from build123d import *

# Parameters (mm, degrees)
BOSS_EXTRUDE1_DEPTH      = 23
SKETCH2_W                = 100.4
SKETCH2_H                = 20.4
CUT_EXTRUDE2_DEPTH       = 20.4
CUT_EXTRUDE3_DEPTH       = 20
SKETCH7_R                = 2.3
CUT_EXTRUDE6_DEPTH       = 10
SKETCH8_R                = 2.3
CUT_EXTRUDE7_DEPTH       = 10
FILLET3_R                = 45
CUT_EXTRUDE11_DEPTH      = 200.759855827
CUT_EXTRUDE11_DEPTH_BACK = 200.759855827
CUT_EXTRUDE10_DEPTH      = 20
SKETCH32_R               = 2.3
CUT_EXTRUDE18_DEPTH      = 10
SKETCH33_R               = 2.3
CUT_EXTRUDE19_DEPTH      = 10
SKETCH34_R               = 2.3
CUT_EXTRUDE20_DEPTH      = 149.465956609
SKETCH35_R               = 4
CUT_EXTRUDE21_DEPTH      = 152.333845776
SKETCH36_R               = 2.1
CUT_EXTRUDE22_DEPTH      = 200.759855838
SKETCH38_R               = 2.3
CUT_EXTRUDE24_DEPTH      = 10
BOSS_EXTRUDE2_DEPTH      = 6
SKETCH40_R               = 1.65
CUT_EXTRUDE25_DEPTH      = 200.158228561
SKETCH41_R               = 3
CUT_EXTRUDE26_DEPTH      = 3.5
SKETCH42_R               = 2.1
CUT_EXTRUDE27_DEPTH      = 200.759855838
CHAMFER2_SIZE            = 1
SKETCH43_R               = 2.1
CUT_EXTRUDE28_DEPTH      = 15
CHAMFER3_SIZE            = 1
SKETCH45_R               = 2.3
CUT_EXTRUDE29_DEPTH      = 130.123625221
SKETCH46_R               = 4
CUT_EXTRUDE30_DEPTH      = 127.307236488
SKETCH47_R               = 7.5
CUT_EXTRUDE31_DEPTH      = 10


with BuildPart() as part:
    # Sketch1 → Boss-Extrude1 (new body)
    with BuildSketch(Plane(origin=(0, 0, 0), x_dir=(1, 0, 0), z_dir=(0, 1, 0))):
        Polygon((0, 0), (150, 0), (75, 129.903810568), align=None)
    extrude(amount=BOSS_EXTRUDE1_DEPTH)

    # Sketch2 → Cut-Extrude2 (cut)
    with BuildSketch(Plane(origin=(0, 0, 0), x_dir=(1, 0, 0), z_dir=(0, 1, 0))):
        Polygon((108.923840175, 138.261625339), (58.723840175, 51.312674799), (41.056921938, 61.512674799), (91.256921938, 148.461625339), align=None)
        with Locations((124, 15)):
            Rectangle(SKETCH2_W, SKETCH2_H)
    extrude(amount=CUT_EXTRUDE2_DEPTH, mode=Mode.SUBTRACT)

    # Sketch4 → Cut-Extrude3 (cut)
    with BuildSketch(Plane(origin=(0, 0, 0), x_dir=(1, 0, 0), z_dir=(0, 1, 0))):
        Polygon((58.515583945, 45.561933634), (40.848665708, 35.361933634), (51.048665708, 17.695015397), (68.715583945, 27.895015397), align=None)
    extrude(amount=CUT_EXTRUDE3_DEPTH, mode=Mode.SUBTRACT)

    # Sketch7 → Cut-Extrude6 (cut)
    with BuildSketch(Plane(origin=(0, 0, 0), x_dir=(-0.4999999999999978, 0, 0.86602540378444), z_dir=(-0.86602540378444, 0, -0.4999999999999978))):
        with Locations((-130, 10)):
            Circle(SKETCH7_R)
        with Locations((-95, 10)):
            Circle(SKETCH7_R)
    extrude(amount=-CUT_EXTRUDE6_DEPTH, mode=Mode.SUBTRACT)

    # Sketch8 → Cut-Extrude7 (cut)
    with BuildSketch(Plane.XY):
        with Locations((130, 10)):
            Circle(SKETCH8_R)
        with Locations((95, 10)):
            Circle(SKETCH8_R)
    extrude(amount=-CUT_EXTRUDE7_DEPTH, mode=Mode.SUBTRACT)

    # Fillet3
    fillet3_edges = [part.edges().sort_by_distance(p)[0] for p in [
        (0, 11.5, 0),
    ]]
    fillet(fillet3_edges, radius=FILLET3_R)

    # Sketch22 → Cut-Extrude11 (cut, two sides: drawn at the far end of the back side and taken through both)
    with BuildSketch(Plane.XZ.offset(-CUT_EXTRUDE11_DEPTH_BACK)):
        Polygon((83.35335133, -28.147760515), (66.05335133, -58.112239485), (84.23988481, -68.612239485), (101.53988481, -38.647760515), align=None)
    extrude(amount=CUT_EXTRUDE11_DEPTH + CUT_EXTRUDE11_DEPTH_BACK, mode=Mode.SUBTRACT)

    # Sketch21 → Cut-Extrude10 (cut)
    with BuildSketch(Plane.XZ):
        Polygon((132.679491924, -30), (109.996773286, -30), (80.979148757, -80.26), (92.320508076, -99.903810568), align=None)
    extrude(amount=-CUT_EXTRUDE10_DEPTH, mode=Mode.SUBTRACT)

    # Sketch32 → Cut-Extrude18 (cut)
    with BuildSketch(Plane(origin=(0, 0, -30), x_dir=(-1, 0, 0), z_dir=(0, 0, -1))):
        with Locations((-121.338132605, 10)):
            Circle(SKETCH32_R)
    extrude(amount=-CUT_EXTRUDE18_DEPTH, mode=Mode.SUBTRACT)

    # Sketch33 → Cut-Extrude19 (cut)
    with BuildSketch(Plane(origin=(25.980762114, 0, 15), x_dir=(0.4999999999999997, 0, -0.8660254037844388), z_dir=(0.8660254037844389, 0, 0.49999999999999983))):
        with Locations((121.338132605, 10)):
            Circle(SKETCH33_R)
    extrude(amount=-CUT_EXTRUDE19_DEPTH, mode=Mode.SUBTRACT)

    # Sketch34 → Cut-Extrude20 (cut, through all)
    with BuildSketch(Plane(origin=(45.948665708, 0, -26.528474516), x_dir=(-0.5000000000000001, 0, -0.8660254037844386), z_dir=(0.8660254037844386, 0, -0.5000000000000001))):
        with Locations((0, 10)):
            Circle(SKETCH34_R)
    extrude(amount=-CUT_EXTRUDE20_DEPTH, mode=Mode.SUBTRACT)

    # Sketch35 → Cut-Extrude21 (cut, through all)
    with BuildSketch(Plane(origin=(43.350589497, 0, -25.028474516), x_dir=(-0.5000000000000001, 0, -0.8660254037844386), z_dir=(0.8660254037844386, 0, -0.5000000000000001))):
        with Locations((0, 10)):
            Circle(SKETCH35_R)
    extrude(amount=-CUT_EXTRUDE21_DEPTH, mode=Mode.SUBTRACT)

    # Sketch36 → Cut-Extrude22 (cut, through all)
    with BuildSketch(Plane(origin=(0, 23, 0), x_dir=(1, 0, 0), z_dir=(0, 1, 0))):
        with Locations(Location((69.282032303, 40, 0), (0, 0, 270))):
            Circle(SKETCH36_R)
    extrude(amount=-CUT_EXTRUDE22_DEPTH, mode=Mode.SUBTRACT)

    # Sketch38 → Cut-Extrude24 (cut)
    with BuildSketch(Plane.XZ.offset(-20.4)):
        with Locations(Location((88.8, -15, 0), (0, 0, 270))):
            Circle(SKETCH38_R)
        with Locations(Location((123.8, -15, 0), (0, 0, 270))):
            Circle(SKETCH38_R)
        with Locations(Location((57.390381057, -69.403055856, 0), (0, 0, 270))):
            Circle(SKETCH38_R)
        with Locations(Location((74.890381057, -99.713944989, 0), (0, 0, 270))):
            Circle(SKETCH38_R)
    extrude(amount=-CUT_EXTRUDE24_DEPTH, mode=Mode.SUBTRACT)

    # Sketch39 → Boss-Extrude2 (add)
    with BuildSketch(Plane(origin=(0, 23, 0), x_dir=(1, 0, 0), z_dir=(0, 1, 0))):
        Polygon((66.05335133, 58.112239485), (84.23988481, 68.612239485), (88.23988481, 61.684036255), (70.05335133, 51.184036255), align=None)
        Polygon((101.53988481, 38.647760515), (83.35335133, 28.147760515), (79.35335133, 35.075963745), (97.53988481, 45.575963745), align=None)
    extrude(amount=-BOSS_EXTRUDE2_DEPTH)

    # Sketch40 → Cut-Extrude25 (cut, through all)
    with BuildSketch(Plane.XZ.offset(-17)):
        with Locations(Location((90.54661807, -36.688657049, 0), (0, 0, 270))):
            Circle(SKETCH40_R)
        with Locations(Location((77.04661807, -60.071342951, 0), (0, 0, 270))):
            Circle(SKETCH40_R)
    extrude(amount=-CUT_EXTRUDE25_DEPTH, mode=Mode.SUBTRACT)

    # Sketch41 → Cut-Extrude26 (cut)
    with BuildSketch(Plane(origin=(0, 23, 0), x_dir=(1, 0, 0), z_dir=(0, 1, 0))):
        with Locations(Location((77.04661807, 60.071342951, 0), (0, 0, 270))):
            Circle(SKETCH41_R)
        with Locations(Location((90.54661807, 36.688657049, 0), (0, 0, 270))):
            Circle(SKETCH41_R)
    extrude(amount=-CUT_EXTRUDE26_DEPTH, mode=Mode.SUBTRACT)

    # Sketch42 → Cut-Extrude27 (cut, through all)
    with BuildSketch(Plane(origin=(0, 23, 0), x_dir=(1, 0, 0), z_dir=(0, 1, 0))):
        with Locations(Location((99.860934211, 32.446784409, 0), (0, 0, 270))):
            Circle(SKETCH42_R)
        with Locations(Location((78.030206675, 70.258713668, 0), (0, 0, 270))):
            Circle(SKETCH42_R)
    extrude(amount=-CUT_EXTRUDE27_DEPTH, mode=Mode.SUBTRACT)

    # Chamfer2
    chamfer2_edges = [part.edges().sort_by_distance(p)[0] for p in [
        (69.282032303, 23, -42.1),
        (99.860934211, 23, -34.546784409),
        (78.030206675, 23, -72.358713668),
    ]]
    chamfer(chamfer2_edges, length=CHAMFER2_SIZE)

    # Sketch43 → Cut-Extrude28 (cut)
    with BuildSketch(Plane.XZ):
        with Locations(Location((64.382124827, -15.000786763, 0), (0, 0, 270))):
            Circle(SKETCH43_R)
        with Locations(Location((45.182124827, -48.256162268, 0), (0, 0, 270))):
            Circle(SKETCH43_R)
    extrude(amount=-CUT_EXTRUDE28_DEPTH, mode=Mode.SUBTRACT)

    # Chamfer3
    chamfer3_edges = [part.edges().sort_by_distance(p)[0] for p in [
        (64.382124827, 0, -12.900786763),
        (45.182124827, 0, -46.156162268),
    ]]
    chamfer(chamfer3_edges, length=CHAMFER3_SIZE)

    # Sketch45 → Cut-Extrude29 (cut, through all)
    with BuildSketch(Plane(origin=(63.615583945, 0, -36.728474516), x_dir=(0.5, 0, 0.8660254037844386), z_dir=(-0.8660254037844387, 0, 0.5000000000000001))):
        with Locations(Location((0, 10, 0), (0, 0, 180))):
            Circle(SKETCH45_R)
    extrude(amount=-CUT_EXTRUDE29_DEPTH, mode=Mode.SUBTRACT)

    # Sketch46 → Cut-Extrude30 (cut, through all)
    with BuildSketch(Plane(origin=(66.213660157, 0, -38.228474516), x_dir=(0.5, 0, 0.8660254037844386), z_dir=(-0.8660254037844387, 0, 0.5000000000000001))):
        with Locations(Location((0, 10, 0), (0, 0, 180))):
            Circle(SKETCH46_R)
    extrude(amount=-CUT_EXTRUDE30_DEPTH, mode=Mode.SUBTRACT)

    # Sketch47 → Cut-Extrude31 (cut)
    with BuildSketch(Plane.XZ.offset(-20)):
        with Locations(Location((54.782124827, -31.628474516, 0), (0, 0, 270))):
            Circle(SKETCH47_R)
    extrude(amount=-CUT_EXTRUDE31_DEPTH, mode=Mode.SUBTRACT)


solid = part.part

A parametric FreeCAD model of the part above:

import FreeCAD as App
import Part
import Sketcher
from FreeCAD import Vector
Q = App.Units.Quantity


def edges_at(feature, points):
    """Names of the edges that pass closest to the given points."""
    edges = feature.Shape.Edges
    near = lambda p: min(range(len(edges)), key=lambda i: edges[i].distToShape(Part.Vertex(*p))[0])
    return sorted({f"Edge{near(p) + 1}" for p in points})

doc = App.newDocument("Part")
params = doc.addObject("Spreadsheet::Sheet", "Params")
for row, (alias, value) in enumerate([
    ("sketch1_width", "150 mm"),
    ("pad1_length", "23 mm"),
    ("sketch2_width", "100.4 mm"),
    ("sketch2_height", "20.4 mm"),
    ("sketch2_length", "100.4 mm"),
    ("sketch2_length2", "20.4 mm"),
    ("pocket1_length", "20.4 mm"),
    ("sketch3_length", "20.4 mm"),
    ("pocket2_length", "20 mm"),
    ("sketch4_diameter", "4.6 mm"),
    ("pocket3_length", "10 mm"),
    ("sketch5_diameter", "4.6 mm"),
    ("pocket4_length", "10 mm"),
    ("fillet_radius", "45 mm"),
    ("sketch6_length", "21 mm"),
    ("sketch6_length2", "34.6 mm"),
    ("pocket6_length", "20 mm"),
    ("sketch8_diameter", "4.6 mm"),
    ("pocket7_length", "10 mm"),
    ("sketch9_diameter", "4.6 mm"),
    ("pocket8_length", "10 mm"),
    ("sketch10_diameter", "4.6 mm"),
    ("sketch11_diameter", "8 mm"),
    ("sketch12_diameter", "4.2 mm"),
    ("sketch13_diameter", "4.6 mm"),
    ("pocket12_length", "10 mm"),
    ("sketch14_length", "21 mm"),
    ("sketch14_length2", "8 mm"),
    ("pad2_length", "6 mm"),
    ("sketch15_diameter", "3.3 mm"),
    ("sketch16_diameter", "6 mm"),
    ("pocket14_length", "3.5 mm"),
    ("sketch17_diameter", "4.2 mm"),
    ("chamfer_size", "1 mm"),
    ("sketch18_diameter", "4.2 mm"),
    ("pocket16_length", "15 mm"),
    ("chamfer2_size", "1 mm"),
    ("sketch19_diameter", "4.6 mm"),
    ("sketch20_diameter", "8 mm"),
    ("sketch21_diameter", "15 mm"),
    ("pocket19_length", "10 mm"),
], start=1):
    params.set(f"A{row}", alias)
    params.set(f"B{row}", "=" + value)
    params.setAlias(f"B{row}", alias)

body = doc.addObject("PartDesign::Body", "Body")

# Sketch on XZ plane
sketch1 = doc.addObject("Sketcher::SketchObject", "Sketch")
body.addObject(sketch1)
sketch1.AttachmentSupport = (doc.XZ_Plane, [""])
sketch1.MapMode = "FlatFace"
sketch1.addGeometry(Part.LineSegment(Vector(0, 0, 0), Vector(150, 0, 0)), False)
sketch1.addGeometry(Part.LineSegment(Vector(150, 0, 0), Vector(75, -130, 0)), False)
sketch1.addGeometry(Part.LineSegment(Vector(75, -130, 0), Vector(0, 0, 0)), False)
sketch1.addConstraint(Sketcher.Constraint("Coincident", 0, 2, 1, 1))
sketch1.addConstraint(Sketcher.Constraint("Coincident", 1, 2, 2, 1))
sketch1.addConstraint(Sketcher.Constraint("Coincident", 2, 2, 0, 1))
sketch1.addConstraint(Sketcher.Constraint("Horizontal", 0))
sketch1.addConstraint(Sketcher.Constraint("Coincident", 2, 2, -1, 1))
sketch1.addConstraint(Sketcher.Constraint("Equal", 1, 2))
sketch1.addConstraint(Sketcher.Constraint("DistanceX", 0, 1, 0, 2, 150.0))
sketch1.addConstraint(Sketcher.Constraint("Angle", 1, Q("-120 deg")))
sketch1.setExpression("Constraints[6]", "Params.sketch1_width")
pad1 = doc.addObject("PartDesign::Pad", "Pad")
body.addObject(pad1)
pad1.Profile = sketch1
pad1.setExpression("Length", "Params.pad1_length")
pad1.Reversed = True

# Sketch on XZ plane
sketch2 = doc.addObject("Sketcher::SketchObject", "Sketch001")
body.addObject(sketch2)
sketch2.AttachmentSupport = (doc.XZ_Plane, [""])
sketch2.MapMode = "FlatFace"
sketch2.addGeometry(Part.LineSegment(Vector(59, -51, 0), Vector(109, -138, 0)), False)
sketch2.addGeometry(Part.LineSegment(Vector(109, -138, 0), Vector(91, -148, 0)), False)
sketch2.addGeometry(Part.LineSegment(Vector(91, -148, 0), Vector(41, -62, 0)), False)
sketch2.addGeometry(Part.LineSegment(Vector(41, -62, 0), Vector(59, -51, 0)), False)
sketch2.addGeometry(Part.LineSegment(Vector(74, -25, 0), Vector(74, -5, 0)), False)
sketch2.addGeometry(Part.LineSegment(Vector(74, -5, 0), Vector(174, -5, 0)), False)
sketch2.addGeometry(Part.LineSegment(Vector(174, -5, 0), Vector(174, -25, 0)), False)
sketch2.addGeometry(Part.LineSegment(Vector(174, -25, 0), Vector(74, -25, 0)), False)
sketch2.addConstraint(Sketcher.Constraint("Coincident", 0, 2, 1, 1))
sketch2.addConstraint(Sketcher.Constraint("Coincident", 1, 2, 2, 1))
sketch2.addConstraint(Sketcher.Constraint("Coincident", 2, 2, 3, 1))
sketch2.addConstraint(Sketcher.Constraint("Coincident", 3, 2, 0, 1))
sketch2.addConstraint(Sketcher.Constraint("Coincident", 4, 2, 5, 1))
sketch2.addConstraint(Sketcher.Constraint("Coincident", 5, 2, 6, 1))
sketch2.addConstraint(Sketcher.Constraint("Coincident", 6, 2, 7, 1))
sketch2.addConstraint(Sketcher.Constraint("Coincident", 7, 2, 4, 1))
sketch2.addConstraint(Sketcher.Constraint("Vertical", 4))
sketch2.addConstraint(Sketcher.Constraint("Horizontal", 5))
sketch2.addConstraint(Sketcher.Constraint("Vertical", 6))
sketch2.addConstraint(Sketcher.Constraint("Horizontal", 7))
sketch2.addConstraint(Sketcher.Constraint("Perpendicular", 0, 1))
sketch2.addConstraint(Sketcher.Constraint("Perpendicular", 1, 2))
sketch2.addConstraint(Sketcher.Constraint("Perpendicular", 2, 3))
sketch2.addConstraint(Sketcher.Constraint("Angle", 0, Q("-60 deg")))
sketch2.addConstraint(Sketcher.Constraint("DistanceX", 5, 1, 5, 2, 100.4))
sketch2.addConstraint(Sketcher.Constraint("DistanceY", 4, 1, 4, 2, 20.4))
sketch2.addConstraint(Sketcher.Constraint("Distance", 0, 100.4))
sketch2.addConstraint(Sketcher.Constraint("Distance", 1, 20.4))
sketch2.addConstraint(Sketcher.Constraint("DistanceX", -1, 1, 4, 2, 73.8))
sketch2.addConstraint(Sketcher.Constraint("DistanceY", 4, 2, -1, 1, 4.8))
sketch2.addConstraint(Sketcher.Constraint("DistanceX", -1, 1, 0, 2, 108.92384))
sketch2.addConstraint(Sketcher.Constraint("DistanceY", 0, 2, -1, 1, 138.261625))
sketch2.setExpression("Constraints[16]", "Params.sketch2_width")
sketch2.setExpression("Constraints[17]", "Params.sketch2_height")
sketch2.setExpression("Constraints[18]", "Params.sketch2_length")
sketch2.setExpression("Constraints[19]", "Params.sketch2_length2")
pocket1 = doc.addObject("PartDesign::Pocket", "Pocket")
body.addObject(pocket1)
pocket1.Profile = sketch2
pocket1.setExpression("Length", "Params.pocket1_length")

# Sketch on XZ plane
sketch3 = doc.addObject("Sketcher::SketchObject", "Sketch002")
body.addObject(sketch3)
sketch3.AttachmentSupport = (doc.XZ_Plane, [""])
sketch3.MapMode = "FlatFace"
sketch3.addGeometry(Part.LineSegment(Vector(59, -46, 0), Vector(41, -35, 0)), False)
sketch3.addGeometry(Part.LineSegment(Vector(41, -35, 0), Vector(51, -18, 0)), False)
sketch3.addGeometry(Part.LineSegment(Vector(51, -18, 0), Vector(69, -28, 0)), False)
sketch3.addGeometry(Part.LineSegment(Vector(69, -28, 0), Vector(59, -46, 0)), False)
sketch3.addConstraint(Sketcher.Constraint("Coincident", 0, 2, 1, 1))
sketch3.addConstraint(Sketcher.Constraint("Coincident", 1, 2, 2, 1))
sketch3.addConstraint(Sketcher.Constraint("Coincident", 2, 2, 3, 1))
sketch3.addConstraint(Sketcher.Constraint("Coincident", 3, 2, 0, 1))
sketch3.addConstraint(Sketcher.Constraint("Perpendicular", 0, 1))
sketch3.addConstraint(Sketcher.Constraint("Perpendicular", 1, 2))
sketch3.addConstraint(Sketcher.Constraint("Perpendicular", 2, 3))
sketch3.addConstraint(Sketcher.Constraint("Equal", 0, 1))
sketch3.addConstraint(Sketcher.Constraint("Angle", 0, Q("150 deg")))
sketch3.addConstraint(Sketcher.Constraint("Distance", 0, 20.4))
sketch3.addConstraint(Sketcher.Constraint("DistanceX", -1, 1, 0, 2, 40.848666))
sketch3.addConstraint(Sketcher.Constraint("DistanceY", 0, 2, -1, 1, 35.361934))
sketch3.setExpression("Constraints[9]", "Params.sketch3_length")
pocket2 = doc.addObject("PartDesign::Pocket", "Pocket001")
body.addObject(pocket2)
pocket2.Profile = sketch3
pocket2.setExpression("Length", "Params.pocket2_length")

# Sketch on an angled plane
sketch4 = doc.addObject("Sketcher::SketchObject", "Sketch003")
body.addObject(sketch4)
sketch4.Placement = App.Placement(Vector(0, 0, 0), App.Rotation(Vector(-0.5, 0, 0.866025404), Vector(0, 1, 0), Vector(-0.866025404, 0, -0.5), "ZXY"))
sketch4.addGeometry(Part.Circle(Vector(-130, 10, 0), Vector(0, 0, 1), 2.3), False)
sketch4.addGeometry(Part.Circle(Vector(-95, 10, 0), Vector(0, 0, 1), 2.3), False)
sketch4.addConstraint(Sketcher.Constraint("Equal", 0, 1))
sketch4.addConstraint(Sketcher.Constraint("Horizontal", 0, 3, 1, 3))
sketch4.addConstraint(Sketcher.Constraint("Diameter", 0, 4.6))
sketch4.addConstraint(Sketcher.Constraint("DistanceX", 0, 3, -1, 1, 130.0))
sketch4.addConstraint(Sketcher.Constraint("DistanceY", -1, 1, 0, 3, 10.0))
sketch4.addConstraint(Sketcher.Constraint("DistanceX", 1, 3, -1, 1, 95.0))
sketch4.setExpression("Constraints[2]", "Params.sketch4_diameter")
pocket3 = doc.addObject("PartDesign::Pocket", "Pocket002")
body.addObject(pocket3)
pocket3.Profile = sketch4
pocket3.setExpression("Length", "Params.pocket3_length")

# Sketch on XY plane
sketch5 = doc.addObject("Sketcher::SketchObject", "Sketch004")
body.addObject(sketch5)
sketch5.AttachmentSupport = (doc.XY_Plane, [""])
sketch5.MapMode = "FlatFace"
sketch5.addGeometry(Part.Circle(Vector(130, 10, 0), Vector(0, 0, 1), 2.3), False)
sketch5.addGeometry(Part.Circle(Vector(95, 10, 0), Vector(0, 0, 1), 2.3), False)
sketch5.addConstraint(Sketcher.Constraint("Equal", 0, 1))
sketch5.addConstraint(Sketcher.Constraint("Horizontal", 0, 3, 1, 3))
sketch5.addConstraint(Sketcher.Constraint("Diameter", 0, 4.6))
sketch5.addConstraint(Sketcher.Constraint("DistanceX", -1, 1, 0, 3, 130.0))
sketch5.addConstraint(Sketcher.Constraint("DistanceY", -1, 1, 0, 3, 10.0))
sketch5.addConstraint(Sketcher.Constraint("DistanceX", -1, 1, 1, 3, 95.0))
sketch5.setExpression("Constraints[2]", "Params.sketch5_diameter")
pocket4 = doc.addObject("PartDesign::Pocket", "Pocket003")
body.addObject(pocket4)
pocket4.Profile = sketch5
pocket4.setExpression("Length", "Params.pocket4_length")
doc.recompute()

fillet = doc.addObject("PartDesign::Fillet", "Fillet")
body.addObject(fillet)
fillet.Base = (pocket4, edges_at(pocket4, [(0, 11.5, 0)]))
fillet.setExpression("Radius", "Params.fillet_radius")

# Sketch on XZ plane
sketch6 = doc.addObject("Sketcher::SketchObject", "Sketch005")
body.addObject(sketch6)
sketch6.AttachmentSupport = (doc.XZ_Plane, [""])
sketch6.MapMode = "FlatFace"
sketch6.addGeometry(Part.LineSegment(Vector(83, -28, 0), Vector(66, -58, 0)), False)
sketch6.addGeometry(Part.LineSegment(Vector(66, -58, 0), Vector(84, -69, 0)), False)
sketch6.addGeometry(Part.LineSegment(Vector(84, -69, 0), Vector(102, -39, 0)), False)
sketch6.addGeometry(Part.LineSegment(Vector(102, -39, 0), Vector(83, -28, 0)), False)
sketch6.addConstraint(Sketcher.Constraint("Coincident", 0, 2, 1, 1))
sketch6.addConstraint(Sketcher.Constraint("Coincident", 1, 2, 2, 1))
sketch6.addConstraint(Sketcher.Constraint("Coincident", 2, 2, 3, 1))
sketch6.addConstraint(Sketcher.Constraint("Coincident", 3, 2, 0, 1))
sketch6.addConstraint(Sketcher.Constraint("Perpendicular", 0, 1))
sketch6.addConstraint(Sketcher.Constraint("Perpendicular", 1, 2))
sketch6.addConstraint(Sketcher.Constraint("Perpendicular", 2, 3))
sketch6.addConstraint(Sketcher.Constraint("Angle", 0, Q("-120 deg")))
sketch6.addConstraint(Sketcher.Constraint("Distance", 1, 21.0))
sketch6.addConstraint(Sketcher.Constraint("Distance", 0, 34.6))
sketch6.addConstraint(Sketcher.Constraint("DistanceX", -1, 1, 0, 2, 66.053351))
sketch6.addConstraint(Sketcher.Constraint("DistanceY", 0, 2, -1, 1, 58.112239))
sketch6.setExpression("Constraints[8]", "Params.sketch6_length")
sketch6.setExpression("Constraints[9]", "Params.sketch6_length2")
pocket5 = doc.addObject("PartDesign::Pocket", "Pocket004")
body.addObject(pocket5)
pocket5.Profile = sketch6
pocket5.Type = "ThroughAll"
pocket5.Midplane = True

# Sketch on XZ plane
sketch7 = doc.addObject("Sketcher::SketchObject", "Sketch006")
body.addObject(sketch7)
sketch7.AttachmentSupport = (doc.XZ_Plane, [""])
sketch7.MapMode = "FlatFace"
sketch7.addGeometry(Part.LineSegment(Vector(133, -30, 0), Vector(110, -30, 0)), False)
sketch7.addGeometry(Part.LineSegment(Vector(110, -30, 0), Vector(81, -80, 0)), False)
sketch7.addGeometry(Part.LineSegment(Vector(81, -80, 0), Vector(92, -100, 0)), False)
sketch7.addGeometry(Part.LineSegment(Vector(92, -100, 0), Vector(133, -30, 0)), False)
sketch7.addConstraint(Sketcher.Constraint("Coincident", 0, 2, 1, 1))
sketch7.addConstraint(Sketcher.Constraint("Coincident", 1, 2, 2, 1))
sketch7.addConstraint(Sketcher.Constraint("Coincident", 2, 2, 3, 1))
sketch7.addConstraint(Sketcher.Constraint("Coincident", 3, 2, 0, 1))
sketch7.addConstraint(Sketcher.Constraint("Horizontal", 0))
sketch7.addConstraint(Sketcher.Constraint("Parallel", 1, 3))
sketch7.addConstraint(Sketcher.Constraint("Angle", 1, Q("-120 deg")))
sketch7.addConstraint(Sketcher.Constraint("Angle", 2, Q("-60 deg")))
sketch7.addConstraint(Sketcher.Constraint("DistanceY", 0, 2, -1, 1, 30.0))
sketch7.addConstraint(Sketcher.Constraint("DistanceY", 1, 2, -1, 1, 80.26))
sketch7.addConstraint(Sketcher.Constraint("DistanceX", 0, 2, 0, 1, 22.682719))
sketch7.addConstraint(Sketcher.Constraint("DistanceX", -1, 1, 1, 2, 80.979149))
pocket6 = doc.addObject("PartDesign::Pocket", "Pocket005")
body.addObject(pocket6)
pocket6.Profile = sketch7
pocket6.setExpression("Length", "Params.pocket6_length")

# Sketch on XY plane
sketch8 = doc.addObject("Sketcher::SketchObject", "Sketch007")
body.addObject(sketch8)
sketch8.AttachmentSupport = (doc.XY_Plane, [""])
sketch8.MapMode = "FlatFace"
sketch8.AttachmentOffset = App.Placement(Vector(0, 0, -30), App.Rotation())
sketch8.addGeometry(Part.Circle(Vector(121.3, 10, 0), Vector(0, 0, 1), 2.3), False)
sketch8.addConstraint(Sketcher.Constraint("Diameter", 0, 4.6))
sketch8.addConstraint(Sketcher.Constraint("DistanceY", -1, 1, 0, 3, 10.0))
sketch8.addConstraint(Sketcher.Constraint("DistanceX", -1, 1, 0, 3, 121.338133))
sketch8.setExpression("Constraints[0]", "Params.sketch8_diameter")
pocket7 = doc.addObject("PartDesign::Pocket", "Pocket006")
body.addObject(pocket7)
pocket7.Profile = sketch8
pocket7.setExpression("Length", "Params.pocket7_length")
pocket7.Reversed = True

# Sketch on an angled plane
sketch9 = doc.addObject("Sketcher::SketchObject", "Sketch008")
body.addObject(sketch9)
sketch9.Placement = App.Placement(Vector(25.980762, 0, 15), App.Rotation(Vector(0.5, 0, -0.866025404), Vector(0, 1, 0), Vector(0.866025404, 0, 0.5), "ZXY"))
sketch9.addGeometry(Part.Circle(Vector(121.3, 10, 0), Vector(0, 0, 1), 2.3), False)
sketch9.addConstraint(Sketcher.Constraint("Diameter", 0, 4.6))
sketch9.addConstraint(Sketcher.Constraint("DistanceY", -1, 1, 0, 3, 10.0))
sketch9.addConstraint(Sketcher.Constraint("DistanceX", -1, 1, 0, 3, 121.338133))
sketch9.setExpression("Constraints[0]", "Params.sketch9_diameter")
pocket8 = doc.addObject("PartDesign::Pocket", "Pocket007")
body.addObject(pocket8)
pocket8.Profile = sketch9
pocket8.setExpression("Length", "Params.pocket8_length")

# Sketch on an angled plane
sketch10 = doc.addObject("Sketcher::SketchObject", "Sketch009")
body.addObject(sketch10)
sketch10.Placement = App.Placement(Vector(45.948666, 0, -26.528475), App.Rotation(Vector(-0.5, 0, -0.866025404), Vector(0, 1, 0), Vector(0.866025404, 0, -0.5), "ZXY"))
sketch10.addGeometry(Part.Circle(Vector(0, 10, 0), Vector(0, 0, 1), 2.3), False)
sketch10.addConstraint(Sketcher.Constraint("PointOnObject", 0, 3, -2))
sketch10.addConstraint(Sketcher.Constraint("Diameter", 0, 4.6))
sketch10.addConstraint(Sketcher.Constraint("DistanceY", -1, 1, 0, 3, 10.0))
sketch10.setExpression("Constraints[1]", "Params.sketch10_diameter")
pocket9 = doc.addObject("PartDesign::Pocket", "Pocket008")
body.addObject(pocket9)
pocket9.Profile = sketch10
pocket9.Type = "ThroughAll"

# Sketch on an angled plane
sketch11 = doc.addObject("Sketcher::SketchObject", "Sketch010")
body.addObject(sketch11)
sketch11.Placement = App.Placement(Vector(43.350589, 0, -25.028475), App.Rotation(Vector(-0.5, 0, -0.866025404), Vector(0, 1, 0), Vector(0.866025404, 0, -0.5), "ZXY"))
sketch11.addGeometry(Part.Circle(Vector(0, 10, 0), Vector(0, 0, 1), 4), False)
sketch11.addConstraint(Sketcher.Constraint("PointOnObject", 0, 3, -2))
sketch11.addConstraint(Sketcher.Constraint("Diameter", 0, 8.0))
sketch11.addConstraint(Sketcher.Constraint("DistanceY", -1, 1, 0, 3, 10.0))
sketch11.setExpression("Constraints[1]", "Params.sketch11_diameter")
pocket10 = doc.addObject("PartDesign::Pocket", "Pocket009")
body.addObject(pocket10)
pocket10.Profile = sketch11
pocket10.Type = "ThroughAll"

# Sketch on XZ plane
sketch12 = doc.addObject("Sketcher::SketchObject", "Sketch011")
body.addObject(sketch12)
sketch12.AttachmentSupport = (doc.XZ_Plane, [""])
sketch12.MapMode = "FlatFace"
sketch12.AttachmentOffset = App.Placement(Vector(0, 0, -23), App.Rotation())
sketch12.addGeometry(Part.Circle(Vector(69.3, -40, 0), Vector(0, 0, 1), 2.1), False)
sketch12.addConstraint(Sketcher.Constraint("Diameter", 0, 4.2))
sketch12.addConstraint(Sketcher.Constraint("DistanceY", 0, 3, -1, 1, 40.0))
sketch12.addConstraint(Sketcher.Constraint("DistanceX", -1, 1, 0, 3, 69.282032))
sketch12.setExpression("Constraints[0]", "Params.sketch12_diameter")
pocket11 = doc.addObject("PartDesign::Pocket", "Pocket010")
body.addObject(pocket11)
pocket11.Profile = sketch12
pocket11.Type = "ThroughAll"
pocket11.Reversed = True

# Sketch on XZ plane
sketch13 = doc.addObject("Sketcher::SketchObject", "Sketch012")
body.addObject(sketch13)
sketch13.AttachmentSupport = (doc.XZ_Plane, [""])
sketch13.MapMode = "FlatFace"
sketch13.AttachmentOffset = App.Placement(Vector(0, 0, -20.4), App.Rotation())
sketch13.addGeometry(Part.Circle(Vector(88.8, -15, 0), Vector(0, 0, 1), 2.3), False)
sketch13.addGeometry(Part.Circle(Vector(123.8, -15, 0), Vector(0, 0, 1), 2.3), False)
sketch13.addGeometry(Part.Circle(Vector(57.4, -69.4, 0), Vector(0, 0, 1), 2.3), False)
sketch13.addGeometry(Part.Circle(Vector(74.9, -99.7, 0), Vector(0, 0, 1), 2.3), False)
sketch13.addConstraint(Sketcher.Constraint("Equal", 0, 1))
sketch13.addConstraint(Sketcher.Constraint("Equal", 1, 2))
sketch13.addConstraint(Sketcher.Constraint("Equal", 2, 3))
sketch13.addConstraint(Sketcher.Constraint("Horizontal", 0, 3, 1, 3))
sketch13.addConstraint(Sketcher.Constraint("Diameter", 0, 4.6))
sketch13.addConstraint(Sketcher.Constraint("DistanceY", 0, 3, -1, 1, 15.0))
sketch13.addConstraint(Sketcher.Constraint("DistanceX", 0, 3, 1, 3, 35.0))
sketch13.addConstraint(Sketcher.Constraint("DistanceX", -1, 1, 0, 3, 88.8))
sketch13.addConstraint(Sketcher.Constraint("DistanceX", 2, 3, 3, 3, 17.5))
sketch13.addConstraint(Sketcher.Constraint("DistanceX", -1, 1, 2, 3, 57.390381))
sketch13.addConstraint(Sketcher.Constraint("DistanceY", 3, 3, 2, 3, 30.310889))
sketch13.addConstraint(Sketcher.Constraint("DistanceY", 2, 3, -1, 1, 69.403056))
sketch13.setExpression("Constraints[4]", "Params.sketch13_diameter")
pocket12 = doc.addObject("PartDesign::Pocket", "Pocket011")
body.addObject(pocket12)
pocket12.Profile = sketch13
pocket12.setExpression("Length", "Params.pocket12_length")

# Sketch on XZ plane
sketch14 = doc.addObject("Sketcher::SketchObject", "Sketch013")
body.addObject(sketch14)
sketch14.AttachmentSupport = (doc.XZ_Plane, [""])
sketch14.MapMode = "FlatFace"
sketch14.AttachmentOffset = App.Placement(Vector(0, 0, -23), App.Rotation())
sketch14.addGeometry(Part.LineSegment(Vector(84, -69, 0), Vector(66, -58, 0)), False)
sketch14.addGeometry(Part.LineSegment(Vector(66, -58, 0), Vector(70, -51, 0)), False)
sketch14.addGeometry(Part.LineSegment(Vector(70, -51, 0), Vector(88, -62, 0)), False)
sketch14.addGeometry(Part.LineSegment(Vector(88, -62, 0), Vector(84, -69, 0)), False)
sketch14.addGeometry(Part.LineSegment(Vector(83, -28, 0), Vector(102, -39, 0)), False)
sketch14.addGeometry(Part.LineSegment(Vector(102, -39, 0), Vector(98, -46, 0)), False)
sketch14.addGeometry(Part.LineSegment(Vector(98, -46, 0), Vector(79, -35, 0)), False)
sketch14.addGeometry(Part.LineSegment(Vector(79, -35, 0), Vector(83, -28, 0)), False)
sketch14.addConstraint(Sketcher.Constraint("Coincident", 0, 2, 1, 1))
sketch14.addConstraint(Sketcher.Constraint("Coincident", 1, 2, 2, 1))
sketch14.addConstraint(Sketcher.Constraint("Coincident", 2, 2, 3, 1))
sketch14.addConstraint(Sketcher.Constraint("Coincident", 3, 2, 0, 1))
sketch14.addConstraint(Sketcher.Constraint("Coincident", 4, 2, 5, 1))
sketch14.addConstraint(Sketcher.Constraint("Coincident", 5, 2, 6, 1))
sketch14.addConstraint(Sketcher.Constraint("Coincident", 6, 2, 7, 1))
sketch14.addConstraint(Sketcher.Constraint("Coincident", 7, 2, 4, 1))
sketch14.addConstraint(Sketcher.Constraint("Perpendicular", 0, 1))
sketch14.addConstraint(Sketcher.Constraint("Perpendicular", 1, 2))
sketch14.addConstraint(Sketcher.Constraint("Perpendicular", 2, 3))
sketch14.addConstraint(Sketcher.Constraint("Perpendicular", 3, 4))
sketch14.addConstraint(Sketcher.Constraint("Perpendicular", 4, 5))
sketch14.addConstraint(Sketcher.Constraint("Perpendicular", 5, 6))
sketch14.addConstraint(Sketcher.Constraint("Perpendicular", 6, 7))
sketch14.addConstraint(Sketcher.Constraint("Equal", 2, 4))
sketch14.addConstraint(Sketcher.Constraint("Equal", 3, 5))
sketch14.addConstraint(Sketcher.Constraint("Angle", 0, Q("150 deg")))
sketch14.addConstraint(Sketcher.Constraint("Distance", 0, 21.0))
sketch14.addConstraint(Sketcher.Constraint("Distance", 1, 8.0))
sketch14.addConstraint(Sketcher.Constraint("DistanceX", 2, 2, 4, 2, 13.3))
sketch14.addConstraint(Sketcher.Constraint("DistanceX", -1, 1, 0, 2, 66.053351))
sketch14.addConstraint(Sketcher.Constraint("DistanceY", 0, 2, -1, 1, 58.112239))
sketch14.addConstraint(Sketcher.Constraint("DistanceY", 4, 2, -1, 1, 38.647761))
sketch14.setExpression("Constraints[18]", "Params.sketch14_length")
sketch14.setExpression("Constraints[19]", "Params.sketch14_length2")
pad2 = doc.addObject("PartDesign::Pad", "Pad001")
body.addObject(pad2)
pad2.Profile = sketch14
pad2.setExpression("Length", "Params.pad2_length")

# Sketch on XZ plane
sketch15 = doc.addObject("Sketcher::SketchObject", "Sketch014")
body.addObject(sketch15)
sketch15.AttachmentSupport = (doc.XZ_Plane, [""])
sketch15.MapMode = "FlatFace"
sketch15.AttachmentOffset = App.Placement(Vector(0, 0, -17), App.Rotation())
sketch15.addGeometry(Part.Circle(Vector(90.5, -36.7, 0), Vector(0, 0, 1), 1.6), False)
sketch15.addGeometry(Part.Circle(Vector(77, -60.1, 0), Vector(0, 0, 1), 1.6), False)
sketch15.addConstraint(Sketcher.Constraint("Equal", 0, 1))
sketch15.addConstraint(Sketcher.Constraint("Diameter", 0, 3.3))
sketch15.addConstraint(Sketcher.Constraint("DistanceX", 1, 3, 0, 3, 13.5))
sketch15.addConstraint(Sketcher.Constraint("DistanceX", -1, 1, 0, 3, 90.546618))
sketch15.addConstraint(Sketcher.Constraint("DistanceY", 0, 3, -1, 1, 36.688657))
sketch15.addConstraint(Sketcher.Constraint("DistanceY", 1, 3, -1, 1, 60.071343))
sketch15.setExpression("Constraints[1]", "Params.sketch15_diameter")
pocket13 = doc.addObject("PartDesign::Pocket", "Pocket012")
body.addObject(pocket13)
pocket13.Profile = sketch15
pocket13.Type = "ThroughAll"

# Sketch on XZ plane
sketch16 = doc.addObject("Sketcher::SketchObject", "Sketch015")
body.addObject(sketch16)
sketch16.AttachmentSupport = (doc.XZ_Plane, [""])
sketch16.MapMode = "FlatFace"
sketch16.AttachmentOffset = App.Placement(Vector(0, 0, -23), App.Rotation())
sketch16.addGeometry(Part.Circle(Vector(77, -60.1, 0), Vector(0, 0, 1), 3), False)
sketch16.addGeometry(Part.Circle(Vector(90.5, -36.7, 0), Vector(0, 0, 1), 3), False)
sketch16.addConstraint(Sketcher.Constraint("Equal", 0, 1))
sketch16.addConstraint(Sketcher.Constraint("Diameter", 0, 6.0))
sketch16.addConstraint(Sketcher.Constraint("DistanceX", 0, 3, 1, 3, 13.5))
sketch16.addConstraint(Sketcher.Constraint("DistanceX", -1, 1, 0, 3, 77.046618))
sketch16.addConstraint(Sketcher.Constraint("DistanceY", 0, 3, -1, 1, 60.071343))
sketch16.addConstraint(Sketcher.Constraint("DistanceY", 1, 3, -1, 1, 36.688657))
sketch16.setExpression("Constraints[1]", "Params.sketch16_diameter")
pocket14 = doc.addObject("PartDesign::Pocket", "Pocket013")
body.addObject(pocket14)
pocket14.Profile = sketch16
pocket14.setExpression("Length", "Params.pocket14_length")
pocket14.Reversed = True

# Sketch on XZ plane
sketch17 = doc.addObject("Sketcher::SketchObject", "Sketch016")
body.addObject(sketch17)
sketch17.AttachmentSupport = (doc.XZ_Plane, [""])
sketch17.MapMode = "FlatFace"
sketch17.AttachmentOffset = App.Placement(Vector(0, 0, -23), App.Rotation())
sketch17.addGeometry(Part.Circle(Vector(99.9, -32.4, 0), Vector(0, 0, 1), 2.1), False)
sketch17.addGeometry(Part.Circle(Vector(78, -70.3, 0), Vector(0, 0, 1), 2.1), False)
sketch17.addConstraint(Sketcher.Constraint("Equal", 0, 1))
sketch17.addConstraint(Sketcher.Constraint("Diameter", 0, 4.2))
sketch17.addConstraint(Sketcher.Constraint("DistanceY", 1, 3, 0, 3, 37.811929))
sketch17.addConstraint(Sketcher.Constraint("DistanceX", -1, 1, 0, 3, 99.860934))
sketch17.addConstraint(Sketcher.Constraint("DistanceY", 0, 3, -1, 1, 32.446784))
sketch17.addConstraint(Sketcher.Constraint("DistanceX", -1, 1, 1, 3, 78.030207))
sketch17.setExpression("Constraints[1]", "Params.sketch17_diameter")
pocket15 = doc.addObject("PartDesign::Pocket", "Pocket014")
body.addObject(pocket15)
pocket15.Profile = sketch17
pocket15.Type = "ThroughAll"
pocket15.Reversed = True
doc.recompute()

chamfer = doc.addObject("PartDesign::Chamfer", "Chamfer")
body.addObject(chamfer)
chamfer.Base = (pocket15, edges_at(pocket15, [(69.282, 23, -42.1), (99.861, 23, -34.547), (78.03, 23, -72.359)]))
chamfer.setExpression("Size", "Params.chamfer_size")

# Sketch on XZ plane
sketch18 = doc.addObject("Sketcher::SketchObject", "Sketch017")
body.addObject(sketch18)
sketch18.AttachmentSupport = (doc.XZ_Plane, [""])
sketch18.MapMode = "FlatFace"
sketch18.addGeometry(Part.Circle(Vector(64.4, -15, 0), Vector(0, 0, 1), 2.1), False)
sketch18.addGeometry(Part.Circle(Vector(45.2, -48.3, 0), Vector(0, 0, 1), 2.1), False)
sketch18.addConstraint(Sketcher.Constraint("Equal", 0, 1))
sketch18.addConstraint(Sketcher.Constraint("Diameter", 0, 4.2))
sketch18.addConstraint(Sketcher.Constraint("DistanceX", 1, 3, 0, 3, 19.2))
sketch18.addConstraint(Sketcher.Constraint("DistanceX", -1, 1, 0, 3, 64.382125))
sketch18.addConstraint(Sketcher.Constraint("DistanceY", 0, 3, -1, 1, 15.000787))
sketch18.addConstraint(Sketcher.Constraint("DistanceY", 1, 3, -1, 1, 48.256162))
sketch18.setExpression("Constraints[1]", "Params.sketch18_diameter")
pocket16 = doc.addObject("PartDesign::Pocket", "Pocket015")
body.addObject(pocket16)
pocket16.Profile = sketch18
pocket16.setExpression("Length", "Params.pocket16_length")
doc.recompute()

chamfer2 = doc.addObject("PartDesign::Chamfer", "Chamfer001")
body.addObject(chamfer2)
chamfer2.Base = (pocket16, edges_at(pocket16, [(64.382, 0, -12.901), (45.182, 0, -46.156)]))
chamfer2.setExpression("Size", "Params.chamfer2_size")

# Sketch on an angled plane
sketch19 = doc.addObject("Sketcher::SketchObject", "Sketch018")
body.addObject(sketch19)
sketch19.Placement = App.Placement(Vector(63.615584, 0, -36.728475), App.Rotation(Vector(0.5, 0, 0.866025404), Vector(0, 1, 0), Vector(-0.866025404, 0, 0.5), "ZXY"))
sketch19.addGeometry(Part.Circle(Vector(0, 10, 0), Vector(0, 0, 1), 2.3), False)
sketch19.addConstraint(Sketcher.Constraint("PointOnObject", 0, 3, -2))
sketch19.addConstraint(Sketcher.Constraint("Diameter", 0, 4.6))
sketch19.addConstraint(Sketcher.Constraint("DistanceY", -1, 1, 0, 3, 10.0))
sketch19.setExpression("Constraints[1]", "Params.sketch19_diameter")
pocket17 = doc.addObject("PartDesign::Pocket", "Pocket016")
body.addObject(pocket17)
pocket17.Profile = sketch19
pocket17.Type = "ThroughAll"

# Sketch on an angled plane
sketch20 = doc.addObject("Sketcher::SketchObject", "Sketch019")
body.addObject(sketch20)
sketch20.Placement = App.Placement(Vector(66.21366, 0, -38.228475), App.Rotation(Vector(0.5, 0, 0.866025404), Vector(0, 1, 0), Vector(-0.866025404, 0, 0.5), "ZXY"))
sketch20.addGeometry(Part.Circle(Vector(0, 10, 0), Vector(0, 0, 1), 4), False)
sketch20.addConstraint(Sketcher.Constraint("PointOnObject", 0, 3, -2))
sketch20.addConstraint(Sketcher.Constraint("Diameter", 0, 8.0))
sketch20.addConstraint(Sketcher.Constraint("DistanceY", -1, 1, 0, 3, 10.0))
sketch20.setExpression("Constraints[1]", "Params.sketch20_diameter")
pocket18 = doc.addObject("PartDesign::Pocket", "Pocket017")
body.addObject(pocket18)
pocket18.Profile = sketch20
pocket18.Type = "ThroughAll"

# Sketch on XZ plane
sketch21 = doc.addObject("Sketcher::SketchObject", "Sketch020")
body.addObject(sketch21)
sketch21.AttachmentSupport = (doc.XZ_Plane, [""])
sketch21.MapMode = "FlatFace"
sketch21.AttachmentOffset = App.Placement(Vector(0, 0, -20), App.Rotation())
sketch21.addGeometry(Part.Circle(Vector(55, -32, 0), Vector(0, 0, 1), 8), False)
sketch21.addConstraint(Sketcher.Constraint("Diameter", 0, 15.0))
sketch21.addConstraint(Sketcher.Constraint("DistanceX", -1, 1, 0, 3, 54.782125))
sketch21.addConstraint(Sketcher.Constraint("DistanceY", 0, 3, -1, 1, 31.628475))
sketch21.setExpression("Constraints[0]", "Params.sketch21_diameter")
pocket19 = doc.addObject("PartDesign::Pocket", "Pocket018")
body.addObject(pocket19)
pocket19.Profile = sketch21
pocket19.setExpression("Length", "Params.pocket19_length")

doc.recompute()
